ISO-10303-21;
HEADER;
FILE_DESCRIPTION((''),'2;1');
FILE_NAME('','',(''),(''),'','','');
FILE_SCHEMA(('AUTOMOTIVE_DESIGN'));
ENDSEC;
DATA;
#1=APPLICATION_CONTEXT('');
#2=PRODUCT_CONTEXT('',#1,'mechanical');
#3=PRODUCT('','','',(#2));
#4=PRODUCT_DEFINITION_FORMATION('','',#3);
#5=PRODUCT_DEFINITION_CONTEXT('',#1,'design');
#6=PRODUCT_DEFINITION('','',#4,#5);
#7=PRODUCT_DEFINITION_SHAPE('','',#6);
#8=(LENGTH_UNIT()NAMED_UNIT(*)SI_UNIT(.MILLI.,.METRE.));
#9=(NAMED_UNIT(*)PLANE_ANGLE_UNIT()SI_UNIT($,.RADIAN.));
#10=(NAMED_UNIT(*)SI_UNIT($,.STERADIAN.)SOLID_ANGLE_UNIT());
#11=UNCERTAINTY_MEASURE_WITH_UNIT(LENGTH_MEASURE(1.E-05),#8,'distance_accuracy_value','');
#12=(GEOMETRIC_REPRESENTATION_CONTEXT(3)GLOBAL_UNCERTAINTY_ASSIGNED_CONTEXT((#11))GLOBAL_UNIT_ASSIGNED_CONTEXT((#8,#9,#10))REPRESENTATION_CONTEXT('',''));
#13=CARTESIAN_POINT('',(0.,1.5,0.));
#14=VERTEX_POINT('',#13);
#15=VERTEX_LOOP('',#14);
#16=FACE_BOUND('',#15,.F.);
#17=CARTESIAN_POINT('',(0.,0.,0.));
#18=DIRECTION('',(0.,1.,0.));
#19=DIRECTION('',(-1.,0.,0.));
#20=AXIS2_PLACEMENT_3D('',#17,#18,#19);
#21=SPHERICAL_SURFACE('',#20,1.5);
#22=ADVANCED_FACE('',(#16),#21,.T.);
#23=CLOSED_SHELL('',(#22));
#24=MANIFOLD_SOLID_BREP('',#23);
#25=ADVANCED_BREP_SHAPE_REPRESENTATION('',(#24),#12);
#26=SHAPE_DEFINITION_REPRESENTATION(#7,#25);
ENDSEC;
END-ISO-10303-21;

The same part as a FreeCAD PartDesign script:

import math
import FreeCAD as App
import Part
import Sketcher
from FreeCAD import Vector
Q = App.Units.Quantity

doc = App.newDocument("Part")
body = doc.addObject("PartDesign::Body", "Body")

# Sketch on XY plane
sketch1 = body.newObject("Sketcher::SketchObject", "Sketch")
sketch1.AttachmentSupport = (doc.getObject("XY_Plane"), [""])
sketch1.MapMode = "FlatFace"
sketch1.addGeometry(Part.LineSegment(Vector(0, -1.5, 0), Vector(0, 1.5, 0)), False)
sketch1.addGeometry(Part.ArcOfCircle(Part.Circle(Vector(0, 0, 0), Vector(0, 0, 1), 1.5), math.radians(90), math.radians(270)), False)
sketch1.addConstraint(Sketcher.Constraint("Coincident", 0, 1, 1, 2))
sketch1.addConstraint(Sketcher.Constraint("Coincident", 1, 1, 0, 2))
sketch1.addConstraint(Sketcher.Constraint("Vertical", 0))
sketch1.addConstraint(Sketcher.Constraint("Coincident", 1, 3, -1, 1))
sketch1.addConstraint(Sketcher.Constraint("PointOnObject", 0, 1, -2))
sketch1.addConstraint(Sketcher.Constraint("Radius", 1, Q("1.5 mm")))
revolution = body.newObject("PartDesign::Revolution", "Revolution")
revolution.Profile = sketch1
revolution.ReferenceAxis = (sketch1, ["V_Axis"])
revolution.Angle = 360

doc.recompute()
